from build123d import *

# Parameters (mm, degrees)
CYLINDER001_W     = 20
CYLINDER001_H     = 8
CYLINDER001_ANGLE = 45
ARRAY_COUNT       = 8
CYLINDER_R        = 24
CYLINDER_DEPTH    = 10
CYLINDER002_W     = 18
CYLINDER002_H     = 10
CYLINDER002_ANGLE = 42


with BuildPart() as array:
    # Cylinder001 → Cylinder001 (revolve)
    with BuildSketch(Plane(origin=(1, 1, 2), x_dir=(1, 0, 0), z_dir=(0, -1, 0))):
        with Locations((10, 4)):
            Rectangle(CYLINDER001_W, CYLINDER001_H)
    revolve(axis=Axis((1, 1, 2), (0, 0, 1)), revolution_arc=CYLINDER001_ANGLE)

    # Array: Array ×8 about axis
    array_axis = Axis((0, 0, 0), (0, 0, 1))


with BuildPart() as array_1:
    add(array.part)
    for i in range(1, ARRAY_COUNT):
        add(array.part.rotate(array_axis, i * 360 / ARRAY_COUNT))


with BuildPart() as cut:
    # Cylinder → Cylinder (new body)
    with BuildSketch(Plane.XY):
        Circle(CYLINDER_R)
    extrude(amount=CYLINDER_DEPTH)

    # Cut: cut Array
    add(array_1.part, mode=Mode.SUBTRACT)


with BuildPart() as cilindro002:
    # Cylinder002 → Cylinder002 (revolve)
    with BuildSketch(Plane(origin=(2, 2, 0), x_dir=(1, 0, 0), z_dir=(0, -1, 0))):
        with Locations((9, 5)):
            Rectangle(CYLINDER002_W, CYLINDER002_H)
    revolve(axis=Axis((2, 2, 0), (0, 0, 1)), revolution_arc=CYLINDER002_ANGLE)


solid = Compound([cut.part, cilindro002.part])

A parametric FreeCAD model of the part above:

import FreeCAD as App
import Part
import Sketcher

doc = App.newDocument("Part")
params = doc.addObject("Spreadsheet::Sheet", "Params")
for row, (alias, value) in enumerate([
    ("sketch1_width", "20 mm"),
    ("sketch1_height", "8 mm"),
    ("revolution_angle", "45 deg"),
    ("sketch2_diameter", "48 mm"),
    ("pad1_length", "10 mm"),
    ("sketch3_width", "18 mm"),
    ("sketch3_height", "10 mm"),
    ("revolution2_angle", "42 deg"),
], start=1):
    params.set(f"A{row}", alias)
    params.set(f"B{row}", "=" + value)
    params.setAlias(f"B{row}", alias)

body = doc.addObject("PartDesign::Body", "Body")

# Sketch on XZ plane
sketch1 = body.newObject("Sketcher::SketchObject", "Sketch")
sketch1.AttachmentSupport = (doc.getObject("XZ_Plane"), [""])
sketch1.MapMode = "FlatFace"
sketch1.AttachmentOffset = App.Placement(App.Vector(0, 0, -1), App.Rotation())
sketch1.addGeometry(Part.LineSegment(App.Vector(1, 10, 0), App.Vector(1, 2, 0)), False)
sketch1.addGeometry(Part.LineSegment(App.Vector(1, 2, 0), App.Vector(21, 2, 0)), False)
sketch1.addGeometry(Part.LineSegment(App.Vector(21, 2, 0), App.Vector(21, 10, 0)), False)
sketch1.addGeometry(Part.LineSegment(App.Vector(21, 10, 0), App.Vector(1, 10, 0)), False)
sketch1.addGeometry(Part.LineSegment(App.Vector(1, 2, 0), App.Vector(1, 10, 0)), True)  # axis
sketch1.addConstraint(Sketcher.Constraint("Coincident", 0, 2, 1, 1))
sketch1.addConstraint(Sketcher.Constraint("Coincident", 1, 2, 2, 1))
sketch1.addConstraint(Sketcher.Constraint("Coincident", 2, 2, 3, 1))
sketch1.addConstraint(Sketcher.Constraint("Coincident", 3, 2, 0, 1))
sketch1.addConstraint(Sketcher.Constraint("Vertical", 0))
sketch1.addConstraint(Sketcher.Constraint("Horizontal", 1))
sketch1.addConstraint(Sketcher.Constraint("Vertical", 2))
sketch1.addConstraint(Sketcher.Constraint("Horizontal", 3))
sketch1.addConstraint(Sketcher.Constraint("Vertical", 4))
sketch1.addConstraint(Sketcher.Constraint("Coincident", 4, 1, 0, 2))
sketch1.addConstraint(Sketcher.Constraint("Horizontal", 2, 2, 4, 2))
sketch1.addConstraint(Sketcher.Constraint("DistanceX", 1, 1, 1, 2, 20.0))
sketch1.addConstraint(Sketcher.Constraint("DistanceY", 0, 2, 0, 1, 8.0))
sketch1.addConstraint(Sketcher.Constraint("DistanceX", -1, 1, 0, 2, 1.0))
sketch1.addConstraint(Sketcher.Constraint("DistanceY", -1, 1, 0, 2, 2.0))
sketch1.setExpression("Constraints[11]", "Params.sketch1_width")
sketch1.setExpression("Constraints[12]", "Params.sketch1_height")
revolution = body.newObject("PartDesign::Revolution", "Revolution")
revolution.Profile = sketch1
revolution.ReferenceAxis = (sketch1, ["Axis0"])
revolution.setExpression("Angle", "Params.revolution_angle")
body2 = doc.addObject("PartDesign::Body", "Body001")
body2.AllowCompound = True
doc.recompute()

body2.BaseFeature = body
doc.recompute()

body3 = doc.addObject("PartDesign::Body", "Body002")
body3.BaseFeature = body
body3.Placement = App.Placement(App.Vector(0, 0, 0), App.Rotation(App.Vector(0, 0, 1), 45))
boolean = body2.newObject("PartDesign::Boolean", "Boolean")
boolean.Type = "Fuse"
boolean.addObjects([body3])
doc.recompute()

body4 = doc.addObject("PartDesign::Body", "Body003")
body4.BaseFeature = body
body4.Placement = App.Placement(App.Vector(0, 0, 0), App.Rotation(App.Vector(0, 0, 1), 90))
boolean2 = body2.newObject("PartDesign::Boolean", "Boolean001")
boolean2.Type = "Fuse"
boolean2.addObjects([body4])
doc.recompute()

body5 = doc.addObject("PartDesign::Body", "Body004")
body5.BaseFeature = body
body5.Placement = App.Placement(App.Vector(0, 0, 0), App.Rotation(App.Vector(0, 0, 1), 135))
boolean3 = body2.newObject("PartDesign::Boolean", "Boolean002")
boolean3.Type = "Fuse"
boolean3.addObjects([body5])
doc.recompute()

body6 = doc.addObject("PartDesign::Body", "Body005")
body6.BaseFeature = body
body6.Placement = App.Placement(App.Vector(0, 0, 0), App.Rotation(App.Vector(0, 0, 1), 180))
boolean4 = body2.newObject("PartDesign::Boolean", "Boolean003")
boolean4.Type = "Fuse"
boolean4.addObjects([body6])
doc.recompute()

body7 = doc.addObject("PartDesign::Body", "Body006")
body7.BaseFeature = body
body7.Placement = App.Placement(App.Vector(0, 0, 0), App.Rotation(App.Vector(0, 0, 1), 225))
boolean5 = body2.newObject("PartDesign::Boolean", "Boolean004")
boolean5.Type = "Fuse"
boolean5.addObjects([body7])
doc.recompute()

body8 = doc.addObject("PartDesign::Body", "Body007")
body8.BaseFeature = body
body8.Placement = App.Placement(App.Vector(0, 0, 0), App.Rotation(App.Vector(0, 0, 1), 270))
boolean6 = body2.newObject("PartDesign::Boolean", "Boolean005")
boolean6.Type = "Fuse"
boolean6.addObjects([body8])
doc.recompute()

body.Placement = App.Placement(App.Vector(0, 0, 0), App.Rotation(App.Vector(0, 0, 1), 315))
boolean7 = body2.newObject("PartDesign::Boolean", "Boolean006")
boolean7.Type = "Fuse"
boolean7.addObjects([body])
body9 = doc.addObject("PartDesign::Body", "Body008")

# Sketch on XY plane
sketch2 = body9.newObject("Sketcher::SketchObject", "Sketch001")
sketch2.AttachmentSupport = (doc.getObject("XY_Plane008"), [""])
sketch2.MapMode = "FlatFace"
sketch2.addGeometry(Part.Circle(App.Vector(0, 0, 0), App.Vector(0, 0, 1), 24), False)
sketch2.addConstraint(Sketcher.Constraint("Coincident", 0, 3, -1, 1))
sketch2.addConstraint(Sketcher.Constraint("Diameter", 0, 48.0))
sketch2.setExpression("Constraints[1]", "Params.sketch2_diameter")
pad1 = body9.newObject("PartDesign::Pad", "Pad")
pad1.Profile = sketch2
pad1.setExpression("Length", "Params.pad1_length")
doc.recompute()

boolean8 = body9.newObject("PartDesign::Boolean", "Boolean007")
boolean8.Type = "Cut"
boolean8.addObjects([body2])
body10 = doc.addObject("PartDesign::Body", "Body009")

# Sketch on XZ plane
sketch3 = body10.newObject("Sketcher::SketchObject", "Sketch002")
sketch3.AttachmentSupport = (doc.getObject("XZ_Plane009"), [""])
sketch3.MapMode = "FlatFace"
sketch3.AttachmentOffset = App.Placement(App.Vector(0, 0, -2), App.Rotation())
sketch3.addGeometry(Part.LineSegment(App.Vector(2, 10, 0), App.Vector(2, 0, 0)), False)
sketch3.addGeometry(Part.LineSegment(App.Vector(2, 0, 0), App.Vector(20, 0, 0)), False)
sketch3.addGeometry(Part.LineSegment(App.Vector(20, 0, 0), App.Vector(20, 10, 0)), False)
sketch3.addGeometry(Part.LineSegment(App.Vector(20, 10, 0), App.Vector(2, 10, 0)), False)
sketch3.addGeometry(Part.LineSegment(App.Vector(2, 0, 0), App.Vector(2, 10, 0)), True)  # axis
sketch3.addConstraint(Sketcher.Constraint("Coincident", 0, 2, 1, 1))
sketch3.addConstraint(Sketcher.Constraint("Coincident", 1, 2, 2, 1))
sketch3.addConstraint(Sketcher.Constraint("Coincident", 2, 2, 3, 1))
sketch3.addConstraint(Sketcher.Constraint("Coincident", 3, 2, 0, 1))
sketch3.addConstraint(Sketcher.Constraint("Vertical", 0))
sketch3.addConstraint(Sketcher.Constraint("Horizontal", 1))
sketch3.addConstraint(Sketcher.Constraint("Vertical", 2))
sketch3.addConstraint(Sketcher.Constraint("Horizontal", 3))
sketch3.addConstraint(Sketcher.Constraint("Vertical", 4))
sketch3.addConstraint(Sketcher.Constraint("Coincident", 4, 1, 0, 2))
sketch3.addConstraint(Sketcher.Constraint("PointOnObject", 0, 2, -1))
sketch3.addConstraint(Sketcher.Constraint("Horizontal", 2, 2, 4, 2))
sketch3.addConstraint(Sketcher.Constraint("DistanceX", 1, 1, 1, 2, 18.0))
sketch3.addConstraint(Sketcher.Constraint("DistanceY", 0, 2, 0, 1, 10.0))
sketch3.addConstraint(Sketcher.Constraint("DistanceX", -1, 1, 0, 2, 2.0))
sketch3.setExpression("Constraints[12]", "Params.sketch3_width")
sketch3.setExpression("Constraints[13]", "Params.sketch3_height")
revolution2 = body10.newObject("PartDesign::Revolution", "Revolution001")
revolution2.Profile = sketch3
revolution2.ReferenceAxis = (sketch3, ["Axis0"])
revolution2.setExpression("Angle", "Params.revolution2_angle")

doc.recompute()
